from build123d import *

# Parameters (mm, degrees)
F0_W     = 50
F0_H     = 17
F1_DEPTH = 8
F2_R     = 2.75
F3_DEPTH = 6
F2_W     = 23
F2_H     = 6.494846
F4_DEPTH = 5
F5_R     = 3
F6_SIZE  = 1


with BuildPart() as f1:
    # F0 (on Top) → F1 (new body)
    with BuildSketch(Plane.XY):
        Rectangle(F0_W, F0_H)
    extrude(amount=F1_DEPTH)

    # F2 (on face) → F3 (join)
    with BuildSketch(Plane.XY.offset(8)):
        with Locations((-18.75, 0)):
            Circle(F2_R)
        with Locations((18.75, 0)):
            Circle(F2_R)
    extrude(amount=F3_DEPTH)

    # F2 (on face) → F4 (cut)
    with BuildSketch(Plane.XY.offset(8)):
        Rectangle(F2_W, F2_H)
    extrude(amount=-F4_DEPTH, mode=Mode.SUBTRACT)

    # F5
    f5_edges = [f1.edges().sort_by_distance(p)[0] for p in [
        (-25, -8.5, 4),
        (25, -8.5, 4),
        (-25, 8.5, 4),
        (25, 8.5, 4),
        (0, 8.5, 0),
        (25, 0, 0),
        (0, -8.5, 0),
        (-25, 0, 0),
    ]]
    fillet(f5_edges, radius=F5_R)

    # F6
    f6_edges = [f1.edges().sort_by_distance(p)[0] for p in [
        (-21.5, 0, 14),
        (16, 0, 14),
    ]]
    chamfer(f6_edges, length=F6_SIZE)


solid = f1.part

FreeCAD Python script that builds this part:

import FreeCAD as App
import Part
import Sketcher
from FreeCAD import Vector


def edges_at(feature, points):
    """Names of the edges that pass closest to the given points."""
    edges = feature.Shape.Edges
    near = lambda p: min(range(len(edges)), key=lambda i: edges[i].distToShape(Part.Vertex(*p))[0])
    return sorted({f"Edge{near(p) + 1}" for p in points})

doc = App.newDocument("Part")
body = doc.addObject("PartDesign::Body", "Body")

# Sketch on XY plane
sketch1 = body.newObject("Sketcher::SketchObject", "Sketch")
sketch1.AttachmentSupport = (doc.getObject("XY_Plane"), [""])
sketch1.MapMode = "FlatFace"
sketch1.addGeometry(Part.LineSegment(Vector(-25, 8, 0), Vector(-25, -8, 0)), False)
sketch1.addGeometry(Part.LineSegment(Vector(-25, -8, 0), Vector(25, -8, 0)), False)
sketch1.addGeometry(Part.LineSegment(Vector(25, -8, 0), Vector(25, 8, 0)), False)
sketch1.addGeometry(Part.LineSegment(Vector(25, 8, 0), Vector(-25, 8, 0)), False)
sketch1.addConstraint(Sketcher.Constraint("Coincident", 0, 2, 1, 1))
sketch1.addConstraint(Sketcher.Constraint("Coincident", 1, 2, 2, 1))
sketch1.addConstraint(Sketcher.Constraint("Coincident", 2, 2, 3, 1))
sketch1.addConstraint(Sketcher.Constraint("Coincident", 3, 2, 0, 1))
sketch1.addConstraint(Sketcher.Constraint("Vertical", 0))
sketch1.addConstraint(Sketcher.Constraint("Horizontal", 1))
sketch1.addConstraint(Sketcher.Constraint("Vertical", 2))
sketch1.addConstraint(Sketcher.Constraint("Horizontal", 3))
sketch1.addConstraint(Sketcher.Constraint("Symmetric", 0, 2, 2, 2, -1, 1))
sketch1.addConstraint(Sketcher.Constraint("DistanceX", 1, 1, 1, 2, 50.0))
sketch1.addConstraint(Sketcher.Constraint("DistanceY", 0, 2, 0, 1, 17.0))
pad1 = body.newObject("PartDesign::Pad", "Pad")
pad1.Profile = sketch1
pad1.Length = 8

# Sketch on XY plane
sketch2 = body.newObject("Sketcher::SketchObject", "Sketch001")
sketch2.AttachmentSupport = (doc.getObject("XY_Plane"), [""])
sketch2.MapMode = "FlatFace"
sketch2.AttachmentOffset = App.Placement(Vector(0, 0, 8), App.Rotation())
sketch2.addGeometry(Part.Circle(Vector(-18.8, 0, 0), Vector(0, 0, 1), 2.8), False)
sketch2.addGeometry(Part.Circle(Vector(18.8, 0, 0), Vector(0, 0, 1), 2.8), False)
sketch2.addConstraint(Sketcher.Constraint("Equal", 0, 1))
sketch2.addConstraint(Sketcher.Constraint("Symmetric", 0, 3, 1, 3, -1, 1))
sketch2.addConstraint(Sketcher.Constraint("PointOnObject", 0, 3, -1))
sketch2.addConstraint(Sketcher.Constraint("Diameter", 0, 5.5))
sketch2.addConstraint(Sketcher.Constraint("DistanceX", 0, 3, 1, 3, 37.5))
pad2 = body.newObject("PartDesign::Pad", "Pad001")
pad2.Profile = sketch2
pad2.Length = 6

# Sketch on XY plane
sketch3 = body.newObject("Sketcher::SketchObject", "Sketch002")
sketch3.AttachmentSupport = (doc.getObject("XY_Plane"), [""])
sketch3.MapMode = "FlatFace"
sketch3.AttachmentOffset = App.Placement(Vector(0, 0, 8), App.Rotation())
sketch3.addGeometry(Part.LineSegment(Vector(-12, 3, 0), Vector(-12, -3, 0)), False)
sketch3.addGeometry(Part.LineSegment(Vector(-12, -3, 0), Vector(12, -3, 0)), False)
sketch3.addGeometry(Part.LineSegment(Vector(12, -3, 0), Vector(12, 3, 0)), False)
sketch3.addGeometry(Part.LineSegment(Vector(12, 3, 0), Vector(-12, 3, 0)), False)
sketch3.addConstraint(Sketcher.Constraint("Coincident", 0, 2, 1, 1))
sketch3.addConstraint(Sketcher.Constraint("Coincident", 1, 2, 2, 1))
sketch3.addConstraint(Sketcher.Constraint("Coincident", 2, 2, 3, 1))
sketch3.addConstraint(Sketcher.Constraint("Coincident", 3, 2, 0, 1))
sketch3.addConstraint(Sketcher.Constraint("Vertical", 0))
sketch3.addConstraint(Sketcher.Constraint("Horizontal", 1))
sketch3.addConstraint(Sketcher.Constraint("Vertical", 2))
sketch3.addConstraint(Sketcher.Constraint("Horizontal", 3))
sketch3.addConstraint(Sketcher.Constraint("Symmetric", 0, 2, 2, 2, -1, 1))
sketch3.addConstraint(Sketcher.Constraint("DistanceX", 1, 1, 1, 2, 23.0))
sketch3.addConstraint(Sketcher.Constraint("DistanceY", 0, 2, 0, 1, 6.494846))
pocket1 = body.newObject("PartDesign::Pocket", "Pocket")
pocket1.Profile = sketch3
pocket1.Length = 5
doc.recompute()

fillet = body.newObject("PartDesign::Fillet", "Fillet")
fillet.Base = (pocket1, edges_at(pocket1, [
    (-25, -8.5, 4),
    (25, -8.5, 4),
    (-25, 8.5, 4),
    (25, 8.5, 4),
    (0, 8.5, 0),
    (25, 0, 0),
    (0, -8.5, 0),
    (-25, 0, 0),
]))
fillet.Radius = 3
doc.recompute()

chamfer = body.newObject("PartDesign::Chamfer", "Chamfer")
chamfer.Base = (fillet, edges_at(fillet, [(-21.5, 0, 14), (16, 0, 14)]))
chamfer.Size = 1

doc.recompute()
